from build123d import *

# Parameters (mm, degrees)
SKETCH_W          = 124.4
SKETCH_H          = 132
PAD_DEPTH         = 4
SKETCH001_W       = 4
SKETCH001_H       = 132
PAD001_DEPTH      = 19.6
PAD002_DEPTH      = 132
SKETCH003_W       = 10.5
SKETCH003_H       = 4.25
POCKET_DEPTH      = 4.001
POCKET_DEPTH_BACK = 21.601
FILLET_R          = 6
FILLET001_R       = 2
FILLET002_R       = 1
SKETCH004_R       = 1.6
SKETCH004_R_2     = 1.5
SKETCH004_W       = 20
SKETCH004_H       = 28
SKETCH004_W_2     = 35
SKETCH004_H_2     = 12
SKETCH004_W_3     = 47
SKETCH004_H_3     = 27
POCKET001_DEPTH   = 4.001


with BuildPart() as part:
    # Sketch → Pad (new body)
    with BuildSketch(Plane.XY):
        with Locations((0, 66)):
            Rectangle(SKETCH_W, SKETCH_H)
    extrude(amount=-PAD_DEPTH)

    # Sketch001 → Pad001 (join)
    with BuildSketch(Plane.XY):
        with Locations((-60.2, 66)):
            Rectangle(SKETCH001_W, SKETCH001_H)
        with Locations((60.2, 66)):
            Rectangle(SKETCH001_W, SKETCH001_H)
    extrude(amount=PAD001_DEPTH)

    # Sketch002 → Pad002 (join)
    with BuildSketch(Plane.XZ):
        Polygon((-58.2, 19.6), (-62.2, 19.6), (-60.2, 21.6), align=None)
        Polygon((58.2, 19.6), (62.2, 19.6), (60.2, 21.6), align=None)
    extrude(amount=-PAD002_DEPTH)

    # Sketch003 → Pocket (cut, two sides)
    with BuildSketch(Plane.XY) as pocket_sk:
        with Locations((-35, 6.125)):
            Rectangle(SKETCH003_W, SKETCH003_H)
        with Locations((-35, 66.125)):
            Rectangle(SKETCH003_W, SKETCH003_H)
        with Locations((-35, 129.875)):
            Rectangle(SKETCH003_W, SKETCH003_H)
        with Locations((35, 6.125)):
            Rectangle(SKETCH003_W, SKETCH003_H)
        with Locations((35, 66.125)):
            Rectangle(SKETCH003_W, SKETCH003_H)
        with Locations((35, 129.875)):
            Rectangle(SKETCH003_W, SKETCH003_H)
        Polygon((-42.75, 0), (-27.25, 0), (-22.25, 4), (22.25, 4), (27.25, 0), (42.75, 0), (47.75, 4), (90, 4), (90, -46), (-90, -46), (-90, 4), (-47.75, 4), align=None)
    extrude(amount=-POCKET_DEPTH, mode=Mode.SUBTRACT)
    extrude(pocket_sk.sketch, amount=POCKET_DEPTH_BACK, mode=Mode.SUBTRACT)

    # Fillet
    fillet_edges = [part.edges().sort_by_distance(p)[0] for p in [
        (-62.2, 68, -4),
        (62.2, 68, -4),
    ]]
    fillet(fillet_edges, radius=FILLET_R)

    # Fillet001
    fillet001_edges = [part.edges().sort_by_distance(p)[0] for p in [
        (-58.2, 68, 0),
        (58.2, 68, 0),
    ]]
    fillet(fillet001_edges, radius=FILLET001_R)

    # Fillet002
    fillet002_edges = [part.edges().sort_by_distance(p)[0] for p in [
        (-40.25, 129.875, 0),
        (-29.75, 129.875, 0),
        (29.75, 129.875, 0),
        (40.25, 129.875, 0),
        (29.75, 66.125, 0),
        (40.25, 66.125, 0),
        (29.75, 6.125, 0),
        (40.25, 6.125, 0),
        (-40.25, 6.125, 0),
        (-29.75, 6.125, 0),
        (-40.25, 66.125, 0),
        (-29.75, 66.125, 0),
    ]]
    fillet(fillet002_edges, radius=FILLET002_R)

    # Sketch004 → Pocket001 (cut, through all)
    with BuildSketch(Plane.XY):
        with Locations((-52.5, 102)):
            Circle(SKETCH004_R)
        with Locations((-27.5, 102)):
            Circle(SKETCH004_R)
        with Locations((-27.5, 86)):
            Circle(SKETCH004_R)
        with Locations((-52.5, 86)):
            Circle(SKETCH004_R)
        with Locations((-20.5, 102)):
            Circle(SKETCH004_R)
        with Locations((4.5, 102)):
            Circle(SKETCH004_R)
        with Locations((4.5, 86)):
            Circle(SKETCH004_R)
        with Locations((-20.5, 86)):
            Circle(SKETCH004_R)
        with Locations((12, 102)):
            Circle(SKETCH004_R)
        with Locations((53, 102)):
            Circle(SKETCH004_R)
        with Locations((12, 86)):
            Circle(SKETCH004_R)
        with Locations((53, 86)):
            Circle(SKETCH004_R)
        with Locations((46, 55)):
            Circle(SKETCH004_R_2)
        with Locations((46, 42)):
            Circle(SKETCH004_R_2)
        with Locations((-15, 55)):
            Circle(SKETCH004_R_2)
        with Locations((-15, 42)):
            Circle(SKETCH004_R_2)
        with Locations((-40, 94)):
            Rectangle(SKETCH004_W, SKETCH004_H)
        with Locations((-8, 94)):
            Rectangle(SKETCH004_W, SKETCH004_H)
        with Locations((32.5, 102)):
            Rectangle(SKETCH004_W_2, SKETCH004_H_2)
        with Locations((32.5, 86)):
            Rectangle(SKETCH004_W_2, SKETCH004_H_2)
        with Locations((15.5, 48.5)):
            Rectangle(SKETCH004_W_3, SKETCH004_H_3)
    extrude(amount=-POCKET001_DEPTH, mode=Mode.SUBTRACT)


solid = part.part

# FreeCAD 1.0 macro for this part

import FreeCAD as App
import Part
import Sketcher
Q = App.Units.Quantity


def edges_at(feature, points):
    """Names of the edges that pass closest to the given points."""
    edges = feature.Shape.Edges
    near = lambda p: min(range(len(edges)), key=lambda i: edges[i].distToShape(Part.Vertex(*p))[0])
    return sorted({f"Edge{near(p) + 1}" for p in points})


def add_polygon(sketch, points):
    """Adds a closed chain of lines whose ends are joined by coincident constraints."""
    first, n = sketch.GeometryCount, len(points)
    for a, b in zip(points, points[1:] + points[:1]):
        sketch.addGeometry(Part.LineSegment(App.Vector(*a, 0), App.Vector(*b, 0)), False)
    for i in range(n):
        sketch.addConstraint(Sketcher.Constraint("Coincident", first + i, 2, first + (i + 1) % n, 1))

doc = App.newDocument("Part")
body = doc.addObject("PartDesign::Body", "Body")

# Sketch on XY plane
sketch1 = body.newObject("Sketcher::SketchObject", "Sketch")
sketch1.AttachmentSupport = (doc.getObject("XY_Plane"), [""])
sketch1.MapMode = "FlatFace"
add_polygon(sketch1, [(-62, 132), (-62, 0), (62, 0), (62, 132)])  # lines 0-3
sketch1.addConstraint(Sketcher.Constraint("Vertical", 0))
sketch1.addConstraint(Sketcher.Constraint("Horizontal", 1))
sketch1.addConstraint(Sketcher.Constraint("Vertical", 2))
sketch1.addConstraint(Sketcher.Constraint("Horizontal", 3))
sketch1.addConstraint(Sketcher.Constraint("Symmetric", 0, 2, 1, 2, -1, 1))
sketch1.addConstraint(Sketcher.Constraint("DistanceY", 0, 2, 0, 1, Q("132 mm")))
sketch1.addConstraint(Sketcher.Constraint("DistanceX", 1, 1, 1, 2, Q("124.4 mm")))
pad1 = body.newObject("PartDesign::Pad", "Pad")
pad1.Profile = sketch1
pad1.Length = 4
pad1.Reversed = True

# Sketch on XY plane
sketch2 = body.newObject("Sketcher::SketchObject", "Sketch001")
sketch2.AttachmentSupport = (doc.getObject("XY_Plane"), [""])
sketch2.MapMode = "FlatFace"
add_polygon(sketch2, [(-62.2, 132), (-62.2, 0), (-58.2, 0), (-58.2, 132)])  # lines 0-3
add_polygon(sketch2, [(58.2, 132), (58.2, 0), (62.2, 0), (62.2, 132)])  # lines 4-7
sketch2.addConstraint(Sketcher.Constraint("Vertical", 0))
sketch2.addConstraint(Sketcher.Constraint("Horizontal", 1))
sketch2.addConstraint(Sketcher.Constraint("Vertical", 2))
sketch2.addConstraint(Sketcher.Constraint("Horizontal", 3))
sketch2.addConstraint(Sketcher.Constraint("Vertical", 4))
sketch2.addConstraint(Sketcher.Constraint("Horizontal", 5))
sketch2.addConstraint(Sketcher.Constraint("Vertical", 6))
sketch2.addConstraint(Sketcher.Constraint("Horizontal", 7))
sketch2.addConstraint(Sketcher.Constraint("Symmetric", 1, 2, 4, 2, -1, 1))
sketch2.addConstraint(Sketcher.Constraint("Symmetric", 0, 2, 5, 2, -2))
sketch2.addConstraint(Sketcher.Constraint("Horizontal", 3, 2, 6, 2))
sketch2.addConstraint(Sketcher.Constraint("DistanceX", 1, 1, 1, 2, Q("4 mm")))
sketch2.addConstraint(Sketcher.Constraint("DistanceY", 0, 2, 0, 1, Q("132 mm")))
sketch2.addConstraint(Sketcher.Constraint("DistanceX", 0, 2, -1, 1, Q("62.2 mm")))
pad2 = body.newObject("PartDesign::Pad", "Pad001")
pad2.Profile = sketch2
pad2.Length = 19.6

# Sketch on XZ plane
sketch3 = body.newObject("Sketcher::SketchObject", "Sketch002")
sketch3.AttachmentSupport = (doc.getObject("XZ_Plane"), [""])
sketch3.MapMode = "FlatFace"
add_polygon(sketch3, [(-62.2, 19.6), (-58.2, 19.6), (-60.2, 21.6)])  # lines 0-2
add_polygon(sketch3, [(58.2, 19.6), (62.2, 19.6), (60.2, 21.6)])  # lines 3-5
sketch3.addConstraint(Sketcher.Constraint("Horizontal", 0))
sketch3.addConstraint(Sketcher.Constraint("Horizontal", 3))
sketch3.addConstraint(Sketcher.Constraint("Symmetric", 2, 2, 3, 2, -2))
sketch3.addConstraint(Sketcher.Constraint("Symmetric", 1, 2, 4, 2, -2))
sketch3.addConstraint(Sketcher.Constraint("Perpendicular", 1, 2))
sketch3.addConstraint(Sketcher.Constraint("Perpendicular", 2, 4))
sketch3.addConstraint(Sketcher.Constraint("Perpendicular", 4, 5))
sketch3.addConstraint(Sketcher.Constraint("DistanceX", 0, 1, 0, 2, Q("4 mm")))
sketch3.addConstraint(Sketcher.Constraint("DistanceX", 0, 2, -1, 1, Q("58.2 mm")))
sketch3.addConstraint(Sketcher.Constraint("DistanceY", -1, 1, 0, 2, Q("19.6 mm")))
pad3 = body.newObject("PartDesign::Pad", "Pad002")
pad3.Profile = sketch3
pad3.Length = 132
pad3.Reversed = True

# Sketch on XY plane
sketch4 = body.newObject("Sketcher::SketchObject", "Sketch003")
sketch4.AttachmentSupport = (doc.getObject("XY_Plane"), [""])
sketch4.MapMode = "FlatFace"
add_polygon(sketch4, [(-40.2, 8.2), (-40.2, 4), (-29.8, 4), (-29.8, 8.2)])  # lines 0-3
add_polygon(sketch4, [(-40.2, 68.2), (-40.2, 64), (-29.8, 64), (-29.8, 68.2)])  # lines 4-7
add_polygon(sketch4, [(-40.2, 132), (-40.2, 127.8), (-29.8, 127.8), (-29.8, 132)])  # lines 8-11
add_polygon(sketch4, [(29.8, 8.2), (29.8, 4), (40.2, 4), (40.2, 8.2)])  # lines 12-15
add_polygon(sketch4, [(29.8, 68.2), (29.8, 64), (40.2, 64), (40.2, 68.2)])  # lines 16-19
add_polygon(sketch4, [(29.8, 132), (29.8, 127.8), (40.2, 127.8), (40.2, 132)])  # lines 20-23
add_polygon(sketch4, [(-27.2, 0), (-42.8, 0), (-47.8, 4), (-90, 4), (-90, -46), (90, -46), (90, 4), (47.8, 4), (42.8, 0), (27.2, 0), (22.2, 4), (-22.2, 4)])  # lines 24-35
sketch4.addConstraint(Sketcher.Constraint("Vertical", 0))
sketch4.addConstraint(Sketcher.Constraint("Horizontal", 1))
sketch4.addConstraint(Sketcher.Constraint("Vertical", 2))
sketch4.addConstraint(Sketcher.Constraint("Horizontal", 3))
sketch4.addConstraint(Sketcher.Constraint("Vertical", 4))
sketch4.addConstraint(Sketcher.Constraint("Horizontal", 5))
sketch4.addConstraint(Sketcher.Constraint("Vertical", 6))
sketch4.addConstraint(Sketcher.Constraint("Horizontal", 7))
sketch4.addConstraint(Sketcher.Constraint("Vertical", 8))
sketch4.addConstraint(Sketcher.Constraint("Horizontal", 9))
sketch4.addConstraint(Sketcher.Constraint("Vertical", 10))
sketch4.addConstraint(Sketcher.Constraint("Horizontal", 11))
sketch4.addConstraint(Sketcher.Constraint("Vertical", 12))
sketch4.addConstraint(Sketcher.Constraint("Horizontal", 13))
sketch4.addConstraint(Sketcher.Constraint("Vertical", 14))
sketch4.addConstraint(Sketcher.Constraint("Horizontal", 15))
sketch4.addConstraint(Sketcher.Constraint("Vertical", 16))
sketch4.addConstraint(Sketcher.Constraint("Horizontal", 17))
sketch4.addConstraint(Sketcher.Constraint("Vertical", 18))
sketch4.addConstraint(Sketcher.Constraint("Horizontal", 19))
sketch4.addConstraint(Sketcher.Constraint("Vertical", 20))
sketch4.addConstraint(Sketcher.Constraint("Horizontal", 21))
sketch4.addConstraint(Sketcher.Constraint("Vertical", 22))
sketch4.addConstraint(Sketcher.Constraint("Horizontal", 23))
sketch4.addConstraint(Sketcher.Constraint("Horizontal", 24))
sketch4.addConstraint(Sketcher.Constraint("Horizontal", 26))
sketch4.addConstraint(Sketcher.Constraint("Vertical", 27))
sketch4.addConstraint(Sketcher.Constraint("Horizontal", 28))
sketch4.addConstraint(Sketcher.Constraint("Vertical", 29))
sketch4.addConstraint(Sketcher.Constraint("Horizontal", 30))
sketch4.addConstraint(Sketcher.Constraint("Horizontal", 32))
sketch4.addConstraint(Sketcher.Constraint("Horizontal", 34))
sketch4.addConstraint(Sketcher.Constraint("Symmetric", 24, 2, 31, 2, -1, 1))
sketch4.addConstraint(Sketcher.Constraint("Symmetric", 1, 2, 12, 2, -2))
sketch4.addConstraint(Sketcher.Constraint("Symmetric", 3, 2, 14, 2, -2))
sketch4.addConstraint(Sketcher.Constraint("Symmetric", 5, 2, 16, 2, -2))
sketch4.addConstraint(Sketcher.Constraint("Symmetric", 7, 2, 18, 2, -2))
sketch4.addConstraint(Sketcher.Constraint("Symmetric", 9, 2, 20, 2, -2))
sketch4.addConstraint(Sketcher.Constraint("Symmetric", 11, 2, 22, 2, -2))
sketch4.addConstraint(Sketcher.Constraint("Symmetric", 26, 2, 29, 2, -2))
sketch4.addConstraint(Sketcher.Constraint("Symmetric", 32, 2, 35, 2, -2))
sketch4.addConstraint(Sketcher.Constraint("Parallel", 25, 33))
sketch4.addConstraint(Sketcher.Constraint("Parallel", 31, 35))
sketch4.addConstraint(Sketcher.Constraint("Horizontal", 13, 2, 25, 2))
sketch4.addConstraint(Sketcher.Constraint("Horizontal", 30, 2, 33, 2))
sketch4.addConstraint(Sketcher.Constraint("Vertical", 3, 2, 4, 2))
sketch4.addConstraint(Sketcher.Constraint("Vertical", 2, 2, 5, 2))
sketch4.addConstraint(Sketcher.Constraint("Vertical", 7, 2, 8, 2))
sketch4.addConstraint(Sketcher.Constraint("Vertical", 6, 2, 9, 2))
sketch4.addConstraint(Sketcher.Constraint("Equal", 26, 30))
sketch4.addConstraint(Sketcher.Constraint("Equal", 2, 4))
sketch4.addConstraint(Sketcher.Constraint("Equal", 6, 8))
sketch4.addConstraint(Sketcher.Constraint("DistanceX", 28, 1, 28, 2, Q("180 mm")))
sketch4.addConstraint(Sketcher.Constraint("DistanceY", 27, 2, 27, 1, Q("50 mm")))
sketch4.addConstraint(Sketcher.Constraint("DistanceX", 1, 1, 1, 2, Q("10.5 mm")))
sketch4.addConstraint(Sketcher.Constraint("DistanceX", 24, 2, 24, 1, Q("15.5 mm")))
sketch4.addConstraint(Sketcher.Constraint("DistanceX", 34, 2, 34, 1, Q("44.5 mm")))
sketch4.addConstraint(Sketcher.Constraint("DistanceY", -1, 1, 0, 2, Q("4 mm")))
sketch4.addConstraint(Sketcher.Constraint("DistanceY", -1, 1, 4, 2, Q("64 mm")))
sketch4.addConstraint(Sketcher.Constraint("DistanceY", -1, 1, 10, 2, Q("132 mm")))
sketch4.addConstraint(Sketcher.Constraint("DistanceX", 0, 2, 12, 2, Q("70 mm")))
sketch4.addConstraint(Sketcher.Constraint("DistanceX", 24, 2, 1, 2, Q("13 mm")))
sketch4.addConstraint(Sketcher.Constraint("DistanceY", 0, 2, 0, 1, Q("4.25 mm")))
pocket1 = body.newObject("PartDesign::Pocket", "Pocket")
pocket1.Profile = sketch4
pocket1.Type = "ThroughAll"
pocket1.Midplane = True
doc.recompute()

fillet = body.newObject("PartDesign::Fillet", "Fillet")
fillet.Base = (pocket1, edges_at(pocket1, [(-62.2, 68, -4), (62.2, 68, -4)]))
fillet.Radius = 6
doc.recompute()

fillet2 = body.newObject("PartDesign::Fillet", "Fillet001")
fillet2.Base = (fillet, edges_at(fillet, [(-58.2, 68, 0), (58.2, 68, 0)]))
fillet2.Radius = 2
doc.recompute()

fillet3 = body.newObject("PartDesign::Fillet", "Fillet002")
fillet3.Base = (fillet2, edges_at(fillet2, [
    (-40.25, 129.875, 0),
    (-29.75, 129.875, 0),
    (29.75, 129.875, 0),
    (40.25, 129.875, 0),
    (29.75, 66.125, 0),
    (40.25, 66.125, 0),
    (29.75, 6.125, 0),
    (40.25, 6.125, 0),
    (-40.25, 6.125, 0),
    (-29.75, 6.125, 0),
    (-40.25, 66.125, 0),
    (-29.75, 66.125, 0),
]))
fillet3.Radius = 1

# Sketch on XY plane
sketch5 = body.newObject("Sketcher::SketchObject", "Sketch004")
sketch5.AttachmentSupport = (doc.getObject("XY_Plane"), [""])
sketch5.MapMode = "FlatFace"
sketch5.addGeometry(Part.Circle(App.Vector(-52.5, 102, 0), App.Vector(0, 0, 1), 1.6), False)  # 0
sketch5.addGeometry(Part.Circle(App.Vector(-27.5, 102, 0), App.Vector(0, 0, 1), 1.6), False)  # 1
sketch5.addGeometry(Part.Circle(App.Vector(-27.5, 86, 0), App.Vector(0, 0, 1), 1.6), False)  # 2
sketch5.addGeometry(Part.Circle(App.Vector(-52.5, 86, 0), App.Vector(0, 0, 1), 1.6), False)  # 3
sketch5.addGeometry(Part.Circle(App.Vector(-20.5, 102, 0), App.Vector(0, 0, 1), 1.6), False)  # 4
sketch5.addGeometry(Part.Circle(App.Vector(4.5, 102, 0), App.Vector(0, 0, 1), 1.6), False)  # 5
sketch5.addGeometry(Part.Circle(App.Vector(4.5, 86, 0), App.Vector(0, 0, 1), 1.6), False)  # 6
sketch5.addGeometry(Part.Circle(App.Vector(-20.5, 86, 0), App.Vector(0, 0, 1), 1.6), False)  # 7
sketch5.addGeometry(Part.Circle(App.Vector(12, 102, 0), App.Vector(0, 0, 1), 1.6), False)  # 8
sketch5.addGeometry(Part.Circle(App.Vector(53, 102, 0), App.Vector(0, 0, 1), 1.6), False)  # 9
sketch5.addGeometry(Part.Circle(App.Vector(12, 86, 0), App.Vector(0, 0, 1), 1.6), False)  # 10
sketch5.addGeometry(Part.Circle(App.Vector(53, 86, 0), App.Vector(0, 0, 1), 1.6), False)  # 11
sketch5.addGeometry(Part.Circle(App.Vector(46, 55, 0), App.Vector(0, 0, 1), 1.5), False)  # 12
sketch5.addGeometry(Part.Circle(App.Vector(46, 42, 0), App.Vector(0, 0, 1), 1.5), False)  # 13
sketch5.addGeometry(Part.Circle(App.Vector(-15, 55, 0), App.Vector(0, 0, 1), 1.5), False)  # 14
sketch5.addGeometry(Part.Circle(App.Vector(-15, 42, 0), App.Vector(0, 0, 1), 1.5), False)  # 15
add_polygon(sketch5, [(-50, 108), (-50, 80), (-30, 80), (-30, 108)])  # lines 16-19
add_polygon(sketch5, [(-18, 108), (-18, 80), (2, 80), (2, 108)])  # lines 20-23
add_polygon(sketch5, [(15, 108), (15, 96), (50, 96), (50, 108)])  # lines 24-27
add_polygon(sketch5, [(15, 92), (15, 80), (50, 80), (50, 92)])  # lines 28-31
add_polygon(sketch5, [(-8, 62), (-8, 35), (39, 35), (39, 62)])  # lines 32-35
sketch5.addConstraint(Sketcher.Constraint("Vertical", 16))
sketch5.addConstraint(Sketcher.Constraint("Horizontal", 17))
sketch5.addConstraint(Sketcher.Constraint("Vertical", 18))
sketch5.addConstraint(Sketcher.Constraint("Horizontal", 19))
sketch5.addConstraint(Sketcher.Constraint("Vertical", 20))
sketch5.addConstraint(Sketcher.Constraint("Horizontal", 21))
sketch5.addConstraint(Sketcher.Constraint("Vertical", 22))
sketch5.addConstraint(Sketcher.Constraint("Horizontal", 23))
sketch5.addConstraint(Sketcher.Constraint("Vertical", 24))
sketch5.addConstraint(Sketcher.Constraint("Horizontal", 25))
sketch5.addConstraint(Sketcher.Constraint("Vertical", 26))
sketch5.addConstraint(Sketcher.Constraint("Horizontal", 27))
sketch5.addConstraint(Sketcher.Constraint("Vertical", 28))
sketch5.addConstraint(Sketcher.Constraint("Horizontal", 29))
sketch5.addConstraint(Sketcher.Constraint("Vertical", 30))
sketch5.addConstraint(Sketcher.Constraint("Horizontal", 31))
sketch5.addConstraint(Sketcher.Constraint("Vertical", 32))
sketch5.addConstraint(Sketcher.Constraint("Horizontal", 33))
sketch5.addConstraint(Sketcher.Constraint("Vertical", 34))
sketch5.addConstraint(Sketcher.Constraint("Horizontal", 35))
sketch5.addConstraint(Sketcher.Constraint("Equal", 0, 1))
sketch5.addConstraint(Sketcher.Constraint("Equal", 1, 2))
sketch5.addConstraint(Sketcher.Constraint("Equal", 2, 3))
sketch5.addConstraint(Sketcher.Constraint("Equal", 3, 4))
sketch5.addConstraint(Sketcher.Constraint("Equal", 4, 5))
sketch5.addConstraint(Sketcher.Constraint("Equal", 5, 6))
sketch5.addConstraint(Sketcher.Constraint("Equal", 6, 7))
sketch5.addConstraint(Sketcher.Constraint("Equal", 7, 8))
sketch5.addConstraint(Sketcher.Constraint("Equal", 8, 9))
sketch5.addConstraint(Sketcher.Constraint("Equal", 9, 10))
sketch5.addConstraint(Sketcher.Constraint("Equal", 10, 11))
sketch5.addConstraint(Sketcher.Constraint("Equal", 12, 13))
sketch5.addConstraint(Sketcher.Constraint("Equal", 13, 14))
sketch5.addConstraint(Sketcher.Constraint("Equal", 14, 15))
sketch5.addConstraint(Sketcher.Constraint("Symmetric", 19, 2, 26, 2, -2))
sketch5.addConstraint(Sketcher.Constraint("Symmetric", 16, 2, 29, 2, -2))
sketch5.addConstraint(Sketcher.Constraint("Horizontal", 0, 3, 1, 3))
sketch5.addConstraint(Sketcher.Constraint("Horizontal", 2, 3, 3, 3))
sketch5.addConstraint(Sketcher.Constraint("Horizontal", 1, 3, 4, 3))
sketch5.addConstraint(Sketcher.Constraint("Horizontal", 4, 3, 5, 3))
sketch5.addConstraint(Sketcher.Constraint("Horizontal", 3, 3, 6, 3))
sketch5.addConstraint(Sketcher.Constraint("Horizontal", 6, 3, 7, 3))
sketch5.addConstraint(Sketcher.Constraint("Horizontal", 5, 3, 8, 3))
sketch5.addConstraint(Sketcher.Constraint("Horizontal", 8, 3, 9, 3))
sketch5.addConstraint(Sketcher.Constraint("Horizontal", 7, 3, 10, 3))
sketch5.addConstraint(Sketcher.Constraint("Horizontal", 10, 3, 11, 3))
sketch5.addConstraint(Sketcher.Constraint("Horizontal", 12, 3, 14, 3))
sketch5.addConstraint(Sketcher.Constraint("Horizontal", 13, 3, 15, 3))
sketch5.addConstraint(Sketcher.Constraint("Horizontal", 17, 2, 20, 2))
sketch5.addConstraint(Sketcher.Constraint("Horizontal", 19, 2, 22, 2))
sketch5.addConstraint(Sketcher.Constraint("Vertical", 1, 3, 2, 3))
sketch5.addConstraint(Sketcher.Constraint("Vertical", 0, 3, 3, 3))
sketch5.addConstraint(Sketcher.Constraint("Vertical", 5, 3, 6, 3))
sketch5.addConstraint(Sketcher.Constraint("Vertical", 4, 3, 7, 3))
sketch5.addConstraint(Sketcher.Constraint("Vertical", 8, 3, 10, 3))
sketch5.addConstraint(Sketcher.Constraint("Vertical", 9, 3, 11, 3))
sketch5.addConstraint(Sketcher.Constraint("Vertical", 12, 3, 13, 3))
sketch5.addConstraint(Sketcher.Constraint("Vertical", 14, 3, 15, 3))
sketch5.addConstraint(Sketcher.Constraint("Vertical", 27, 2, 28, 2))
sketch5.addConstraint(Sketcher.Constraint("Equal", 19, 21))
sketch5.addConstraint(Sketcher.Constraint("Equal", 26, 28))
sketch5.addConstraint(Sketcher.Constraint("Diameter", 12, Q("3 mm")))
sketch5.addConstraint(Sketcher.Constraint("Diameter", 0, Q("3.2 mm")))
sketch5.addConstraint(Sketcher.Constraint("DistanceX", 17, 1, 17, 2, Q("20 mm")))
sketch5.addConstraint(Sketcher.Constraint("DistanceX", 25, 1, 25, 2, Q("35 mm")))
sketch5.addConstraint(Sketcher.Constraint("DistanceX", 33, 1, 33, 2, Q("47 mm")))
sketch5.addConstraint(Sketcher.Constraint("DistanceY", 16, 2, 16, 1, Q("28 mm")))
sketch5.addConstraint(Sketcher.Constraint("DistanceY", 24, 2, 24, 1, Q("12 mm")))
sketch5.addConstraint(Sketcher.Constraint("DistanceY", 32, 2, 32, 1, Q("27 mm")))
sketch5.addConstraint(Sketcher.Constraint("DistanceY", -1, 1, 0, 3, Q("102 mm")))
sketch5.addConstraint(Sketcher.Constraint("DistanceY", -1, 1, 2, 3, Q("86 mm")))
sketch5.addConstraint(Sketcher.Constraint("DistanceX", -1, 1, 8, 3, Q("12 mm")))
sketch5.addConstraint(Sketcher.Constraint("DistanceX", -1, 1, 9, 3, Q("53 mm")))
sketch5.addConstraint(Sketcher.Constraint("DistanceX", -1, 1, 12, 3, Q("46 mm")))
sketch5.addConstraint(Sketcher.Constraint("DistanceY", -1, 1, 12, 3, Q("55 mm")))
sketch5.addConstraint(Sketcher.Constraint("DistanceY", -1, 1, 13, 3, Q("42 mm")))
sketch5.addConstraint(Sketcher.Constraint("DistanceX", 14, 3, -1, 1, Q("15 mm")))
sketch5.addConstraint(Sketcher.Constraint("DistanceX", 16, 2, -1, 1, Q("50 mm")))
sketch5.addConstraint(Sketcher.Constraint("DistanceY", -1, 1, 16, 2, Q("80 mm")))
sketch5.addConstraint(Sketcher.Constraint("DistanceX", 20, 2, -1, 1, Q("18 mm")))
sketch5.addConstraint(Sketcher.Constraint("DistanceX", 32, 2, -1, 1, Q("8 mm")))
sketch5.addConstraint(Sketcher.Constraint("DistanceY", -1, 1, 32, 2, Q("35 mm")))
sketch5.addConstraint(Sketcher.Constraint("DistanceX", 0, 3, 1, 3, Q("25 mm")))
sketch5.addConstraint(Sketcher.Constraint("DistanceX", 1, 3, 4, 3, Q("7 mm")))
sketch5.addConstraint(Sketcher.Constraint("DistanceX", 4, 3, 5, 3, Q("25 mm")))
sketch5.addConstraint(Sketcher.Constraint("DistanceX", 0, 3, -1, 1, Q("52.5 mm")))
pocket2 = body.newObject("PartDesign::Pocket", "Pocket001")
pocket2.Profile = sketch5
pocket2.Type = "ThroughAll"

doc.recompute()
